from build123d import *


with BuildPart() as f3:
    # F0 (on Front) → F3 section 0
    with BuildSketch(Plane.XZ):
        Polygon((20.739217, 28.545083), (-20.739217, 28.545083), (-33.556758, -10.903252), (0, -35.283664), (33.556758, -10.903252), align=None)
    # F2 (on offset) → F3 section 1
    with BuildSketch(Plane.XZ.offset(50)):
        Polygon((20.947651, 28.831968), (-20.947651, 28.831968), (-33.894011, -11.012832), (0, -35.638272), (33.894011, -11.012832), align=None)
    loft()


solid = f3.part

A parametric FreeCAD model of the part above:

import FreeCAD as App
import Part
import Sketcher
Q = App.Units.Quantity

doc = App.newDocument("Part")
body = doc.addObject("PartDesign::Body", "Body")

# Sketch on XZ plane
sketch1 = body.newObject("Sketcher::SketchObject", "Sketch")
sketch1.AttachmentSupport = (doc.getObject("XZ_Plane"), [""])
sketch1.MapMode = "FlatFace"
sketch1.addGeometry([
    Part.LineSegment(App.Vector(21, 29, 0), App.Vector(-21, 29, 0)),  # 0
    Part.LineSegment(App.Vector(-21, 29, 0), App.Vector(-34, -11, 0)),  # 1
    Part.LineSegment(App.Vector(-34, -11, 0), App.Vector(0, -35, 0)),  # 2
    Part.LineSegment(App.Vector(0, -35, 0), App.Vector(34, -11, 0)),  # 3
    Part.LineSegment(App.Vector(34, -11, 0), App.Vector(21, 29, 0)),  # 4
], False)
sketch1.addConstraint([
    Sketcher.Constraint("Coincident", 0, 2, 1, 1),
    Sketcher.Constraint("Coincident", 1, 2, 2, 1),
    Sketcher.Constraint("Coincident", 2, 2, 3, 1),
    Sketcher.Constraint("Coincident", 3, 2, 4, 1),
    Sketcher.Constraint("Coincident", 4, 2, 0, 1),
    Sketcher.Constraint("Horizontal", 0),
    Sketcher.Constraint("Symmetric", 1, 2, 3, 2, -2),
    Sketcher.Constraint("PointOnObject", 2, 2, -2),
    Sketcher.Constraint("Equal", 1, 2),
    Sketcher.Constraint("Equal", 3, 4),
    Sketcher.Constraint("Angle", 1, Q("-108 deg")),
    Sketcher.Constraint("Angle", 2, Q("-36 deg")),
    Sketcher.Constraint("DistanceX", 0, 2, 0, 1, 41.478434),
    Sketcher.Constraint("DistanceY", -1, 1, 0, 2, 28.545083),
])

# Sketch on XZ plane
sketch2 = body.newObject("Sketcher::SketchObject", "Sketch001")
sketch2.AttachmentSupport = (doc.getObject("XZ_Plane"), [""])
sketch2.MapMode = "FlatFace"
sketch2.AttachmentOffset = App.Placement(App.Vector(0, 0, 50), App.Rotation())
sketch2.addGeometry([
    Part.LineSegment(App.Vector(21, 29, 0), App.Vector(-21, 29, 0)),  # 0
    Part.LineSegment(App.Vector(-21, 29, 0), App.Vector(-34, -11, 0)),  # 1
    Part.LineSegment(App.Vector(-34, -11, 0), App.Vector(0, -36, 0)),  # 2
    Part.LineSegment(App.Vector(0, -36, 0), App.Vector(34, -11, 0)),  # 3
    Part.LineSegment(App.Vector(34, -11, 0), App.Vector(21, 29, 0)),  # 4
], False)
sketch2.addConstraint([
    Sketcher.Constraint("Coincident", 0, 2, 1, 1),
    Sketcher.Constraint("Coincident", 1, 2, 2, 1),
    Sketcher.Constraint("Coincident", 2, 2, 3, 1),
    Sketcher.Constraint("Coincident", 3, 2, 4, 1),
    Sketcher.Constraint("Coincident", 4, 2, 0, 1),
    Sketcher.Constraint("Horizontal", 0),
    Sketcher.Constraint("Symmetric", 1, 2, 3, 2, -2),
    Sketcher.Constraint("PointOnObject", 2, 2, -2),
    Sketcher.Constraint("Equal", 1, 2),
    Sketcher.Constraint("Equal", 3, 4),
    Sketcher.Constraint("Angle", 1, Q("-108 deg")),
    Sketcher.Constraint("Angle", 2, Q("-36 deg")),
    Sketcher.Constraint("Distance", 1, 41.895302),
    Sketcher.Constraint("DistanceY", -1, 1, 0, 2, 28.831968),
])

additiveloft = body.newObject("PartDesign::AdditiveLoft", "AdditiveLoft")
additiveloft.Profile = sketch1
additiveloft.Sections = [sketch2]

doc.recompute()
